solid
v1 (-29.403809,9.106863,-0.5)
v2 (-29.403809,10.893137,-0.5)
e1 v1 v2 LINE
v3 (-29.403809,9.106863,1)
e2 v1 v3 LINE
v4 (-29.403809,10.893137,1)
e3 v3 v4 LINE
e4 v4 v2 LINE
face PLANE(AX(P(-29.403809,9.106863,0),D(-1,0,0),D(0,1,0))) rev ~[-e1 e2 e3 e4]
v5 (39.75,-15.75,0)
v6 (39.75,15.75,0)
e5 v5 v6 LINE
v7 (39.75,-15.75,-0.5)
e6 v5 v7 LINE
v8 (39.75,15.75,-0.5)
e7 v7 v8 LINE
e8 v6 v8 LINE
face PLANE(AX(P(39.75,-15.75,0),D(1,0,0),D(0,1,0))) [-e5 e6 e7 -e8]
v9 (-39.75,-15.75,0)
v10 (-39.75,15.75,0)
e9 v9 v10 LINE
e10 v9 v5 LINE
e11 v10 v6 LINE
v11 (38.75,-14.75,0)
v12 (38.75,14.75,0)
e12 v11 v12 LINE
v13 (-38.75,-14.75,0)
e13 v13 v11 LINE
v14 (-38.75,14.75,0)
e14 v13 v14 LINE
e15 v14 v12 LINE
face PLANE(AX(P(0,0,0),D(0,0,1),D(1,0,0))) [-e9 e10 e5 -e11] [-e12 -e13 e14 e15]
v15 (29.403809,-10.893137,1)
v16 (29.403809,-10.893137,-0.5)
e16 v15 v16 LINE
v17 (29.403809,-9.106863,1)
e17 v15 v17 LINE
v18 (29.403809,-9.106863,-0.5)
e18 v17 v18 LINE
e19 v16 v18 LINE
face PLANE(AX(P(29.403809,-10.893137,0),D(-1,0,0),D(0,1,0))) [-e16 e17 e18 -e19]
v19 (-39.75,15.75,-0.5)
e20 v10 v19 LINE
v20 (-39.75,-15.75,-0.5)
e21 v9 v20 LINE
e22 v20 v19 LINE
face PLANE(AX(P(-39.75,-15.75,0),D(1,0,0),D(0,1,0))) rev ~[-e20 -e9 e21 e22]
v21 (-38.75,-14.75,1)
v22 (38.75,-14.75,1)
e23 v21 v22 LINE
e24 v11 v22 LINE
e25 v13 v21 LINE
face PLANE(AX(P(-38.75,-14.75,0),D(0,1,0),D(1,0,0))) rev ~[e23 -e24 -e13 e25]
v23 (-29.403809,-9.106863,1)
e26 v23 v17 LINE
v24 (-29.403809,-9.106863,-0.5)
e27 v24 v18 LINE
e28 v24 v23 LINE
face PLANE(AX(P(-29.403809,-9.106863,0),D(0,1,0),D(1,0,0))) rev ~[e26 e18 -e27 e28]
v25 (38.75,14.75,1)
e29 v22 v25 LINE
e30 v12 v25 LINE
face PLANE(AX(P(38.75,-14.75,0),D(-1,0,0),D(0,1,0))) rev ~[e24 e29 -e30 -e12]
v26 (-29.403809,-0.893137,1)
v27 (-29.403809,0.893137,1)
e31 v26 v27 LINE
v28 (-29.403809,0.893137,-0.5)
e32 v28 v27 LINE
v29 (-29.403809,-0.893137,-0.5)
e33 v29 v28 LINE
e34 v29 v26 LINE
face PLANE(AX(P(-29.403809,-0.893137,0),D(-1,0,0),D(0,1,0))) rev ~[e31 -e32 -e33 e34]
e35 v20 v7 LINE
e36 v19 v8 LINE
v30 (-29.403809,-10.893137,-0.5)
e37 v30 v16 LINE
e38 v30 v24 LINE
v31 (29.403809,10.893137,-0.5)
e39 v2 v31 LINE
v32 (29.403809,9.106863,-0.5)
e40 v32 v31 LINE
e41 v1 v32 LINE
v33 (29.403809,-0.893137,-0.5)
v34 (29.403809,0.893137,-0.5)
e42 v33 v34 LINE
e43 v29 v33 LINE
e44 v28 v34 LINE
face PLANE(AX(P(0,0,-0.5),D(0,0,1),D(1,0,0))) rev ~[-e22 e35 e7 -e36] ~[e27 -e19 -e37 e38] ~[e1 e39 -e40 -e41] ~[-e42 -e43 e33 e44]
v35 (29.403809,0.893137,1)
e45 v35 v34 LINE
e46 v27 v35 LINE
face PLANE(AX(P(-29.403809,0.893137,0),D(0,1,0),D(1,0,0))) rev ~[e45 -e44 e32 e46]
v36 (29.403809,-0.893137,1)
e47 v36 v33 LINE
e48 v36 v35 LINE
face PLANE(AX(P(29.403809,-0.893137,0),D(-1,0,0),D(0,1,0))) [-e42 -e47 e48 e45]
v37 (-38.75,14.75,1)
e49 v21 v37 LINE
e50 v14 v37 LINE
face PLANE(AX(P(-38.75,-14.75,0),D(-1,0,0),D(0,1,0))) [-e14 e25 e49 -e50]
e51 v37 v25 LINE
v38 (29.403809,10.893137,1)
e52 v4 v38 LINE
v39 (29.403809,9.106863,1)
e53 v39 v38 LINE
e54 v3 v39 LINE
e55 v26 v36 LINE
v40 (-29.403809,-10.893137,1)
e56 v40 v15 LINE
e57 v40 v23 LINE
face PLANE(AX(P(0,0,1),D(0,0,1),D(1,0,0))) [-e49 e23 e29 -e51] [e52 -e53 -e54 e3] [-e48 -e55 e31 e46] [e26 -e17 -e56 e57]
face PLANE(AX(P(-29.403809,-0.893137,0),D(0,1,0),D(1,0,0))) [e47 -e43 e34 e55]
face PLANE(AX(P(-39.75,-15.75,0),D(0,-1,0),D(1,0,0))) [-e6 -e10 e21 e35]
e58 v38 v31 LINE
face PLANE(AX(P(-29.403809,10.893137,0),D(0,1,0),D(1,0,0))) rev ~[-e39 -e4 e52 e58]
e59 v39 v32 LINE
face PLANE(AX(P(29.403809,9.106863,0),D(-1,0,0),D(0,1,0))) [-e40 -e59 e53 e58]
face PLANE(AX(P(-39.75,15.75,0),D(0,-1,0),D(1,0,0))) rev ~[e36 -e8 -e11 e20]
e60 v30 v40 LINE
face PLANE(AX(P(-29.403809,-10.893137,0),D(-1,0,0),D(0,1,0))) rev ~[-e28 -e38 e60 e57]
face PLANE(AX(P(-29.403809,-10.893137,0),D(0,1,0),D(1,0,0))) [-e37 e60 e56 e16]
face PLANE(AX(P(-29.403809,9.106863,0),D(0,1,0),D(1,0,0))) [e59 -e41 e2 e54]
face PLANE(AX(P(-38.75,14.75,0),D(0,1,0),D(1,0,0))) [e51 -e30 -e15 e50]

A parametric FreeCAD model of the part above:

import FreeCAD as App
import Part
import Sketcher
Q = App.Units.Quantity


def add_polygon(sketch, points):
    """Adds a closed chain of lines whose ends are joined by coincident constraints."""
    first, n = sketch.GeometryCount, len(points)
    for a, b in zip(points, points[1:] + points[:1]):
        sketch.addGeometry(Part.LineSegment(App.Vector(*a, 0), App.Vector(*b, 0)), False)
    for i in range(n):
        sketch.addConstraint(Sketcher.Constraint("Coincident", first + i, 2, first + (i + 1) % n, 1))

doc = App.newDocument("Part")
params = doc.addObject("Spreadsheet::Sheet", "Params")
for row, (alias, value) in enumerate([
    ("sketch1_width", "79.5 mm"),
    ("sketch1_height", "31.5 mm"),
    ("pad1_length", "0.5 mm"),
    ("sketch2_width", "77.5 mm"),
    ("sketch2_height", "29.5 mm"),
    ("pad2_length", "1 mm"),
], start=1):
    params.set(f"A{row}", alias)
    params.set(f"B{row}", "=" + value)
    params.setAlias(f"B{row}", alias)

body = doc.addObject("PartDesign::Body", "Body")

# Sketch on XY plane
sketch1 = body.newObject("Sketcher::SketchObject", "Sketch")
sketch1.AttachmentSupport = (doc.getObject("XY_Plane"), [""])
sketch1.MapMode = "FlatFace"
add_polygon(sketch1, [(-39.8, 15.8), (-39.8, -15.8), (39.8, -15.8), (39.8, 15.8)])  # lines 0-3
add_polygon(sketch1, [(29.4, -10.9), (-29.4, -10.9), (-29.4, -9.1), (29.4, -9.1)])  # lines 4-7
add_polygon(sketch1, [(29.4, -0.9), (-29.4, -0.9), (-29.4, 0.9), (29.4, 0.9)])  # lines 8-11
add_polygon(sketch1, [(29.4, 9.1), (-29.4, 9.1), (-29.4, 10.9), (29.4, 10.9)])  # lines 12-15
sketch1.addConstraint(Sketcher.Constraint("Vertical", 0))
sketch1.addConstraint(Sketcher.Constraint("Horizontal", 1))
sketch1.addConstraint(Sketcher.Constraint("Vertical", 2))
sketch1.addConstraint(Sketcher.Constraint("Horizontal", 3))
sketch1.addConstraint(Sketcher.Constraint("Horizontal", 4))
sketch1.addConstraint(Sketcher.Constraint("Vertical", 5))
sketch1.addConstraint(Sketcher.Constraint("Horizontal", 6))
sketch1.addConstraint(Sketcher.Constraint("Vertical", 7))
sketch1.addConstraint(Sketcher.Constraint("Horizontal", 8))
sketch1.addConstraint(Sketcher.Constraint("Vertical", 9))
sketch1.addConstraint(Sketcher.Constraint("Horizontal", 10))
sketch1.addConstraint(Sketcher.Constraint("Vertical", 11))
sketch1.addConstraint(Sketcher.Constraint("Horizontal", 12))
sketch1.addConstraint(Sketcher.Constraint("Vertical", 13))
sketch1.addConstraint(Sketcher.Constraint("Horizontal", 14))
sketch1.addConstraint(Sketcher.Constraint("Vertical", 15))
sketch1.addConstraint(Sketcher.Constraint("Symmetric", 0, 2, 2, 2, -1, 1))
sketch1.addConstraint(Sketcher.Constraint("Symmetric", 8, 2, 10, 2, -1, 1))
sketch1.addConstraint(Sketcher.Constraint("Symmetric", 6, 2, 12, 2, -1, 1))
sketch1.addConstraint(Sketcher.Constraint("Symmetric", 4, 2, 14, 2, -1, 1))
sketch1.addConstraint(Sketcher.Constraint("Vertical", 5, 2, 8, 2))
sketch1.addConstraint(Sketcher.Constraint("Vertical", 7, 2, 10, 2))
sketch1.addConstraint(Sketcher.Constraint("Equal", 7, 9))
sketch1.addConstraint(Sketcher.Constraint("DistanceX", 1, 1, 1, 2, Q("79.5 mm")))
sketch1.addConstraint(Sketcher.Constraint("DistanceY", 0, 2, 0, 1, Q("31.5 mm")))
sketch1.addConstraint(Sketcher.Constraint("DistanceY", 4, 2, 8, 2, Q("10 mm")))
sketch1.addConstraint(Sketcher.Constraint("DistanceX", 4, 2, 4, 1, Q("58.807618 mm")))
sketch1.addConstraint(Sketcher.Constraint("DistanceY", 5, 1, 5, 2, Q("1.786274 mm")))
sketch1.setExpression("Constraints[39]", "Params.sketch1_width")
sketch1.setExpression("Constraints[40]", "Params.sketch1_height")
pad1 = body.newObject("PartDesign::Pad", "Pad")
pad1.Profile = sketch1
pad1.setExpression("Length", "Params.pad1_length")
pad1.Reversed = True

# Sketch on XY plane
sketch2 = body.newObject("Sketcher::SketchObject", "Sketch001")
sketch2.AttachmentSupport = (doc.getObject("XY_Plane"), [""])
sketch2.MapMode = "FlatFace"
add_polygon(sketch2, [(-38.8, 14.8), (-38.8, -14.8), (38.8, -14.8), (38.8, 14.8)])  # lines 0-3
add_polygon(sketch2, [(29.4, -10.9), (-29.4, -10.9), (-29.4, -9.1), (29.4, -9.1)])  # lines 4-7
add_polygon(sketch2, [(29.4, -0.9), (-29.4, -0.9), (-29.4, 0.9), (29.4, 0.9)])  # lines 8-11
add_polygon(sketch2, [(29.4, 9.1), (-29.4, 9.1), (-29.4, 10.9), (29.4, 10.9)])  # lines 12-15
sketch2.addConstraint(Sketcher.Constraint("Vertical", 0))
sketch2.addConstraint(Sketcher.Constraint("Horizontal", 1))
sketch2.addConstraint(Sketcher.Constraint("Vertical", 2))
sketch2.addConstraint(Sketcher.Constraint("Horizontal", 3))
sketch2.addConstraint(Sketcher.Constraint("Horizontal", 4))
sketch2.addConstraint(Sketcher.Constraint("Vertical", 5))
sketch2.addConstraint(Sketcher.Constraint("Horizontal", 6))
sketch2.addConstraint(Sketcher.Constraint("Vertical", 7))
sketch2.addConstraint(Sketcher.Constraint("Horizontal", 8))
sketch2.addConstraint(Sketcher.Constraint("Vertical", 9))
sketch2.addConstraint(Sketcher.Constraint("Horizontal", 10))
sketch2.addConstraint(Sketcher.Constraint("Vertical", 11))
sketch2.addConstraint(Sketcher.Constraint("Horizontal", 12))
sketch2.addConstraint(Sketcher.Constraint("Vertical", 13))
sketch2.addConstraint(Sketcher.Constraint("Horizontal", 14))
sketch2.addConstraint(Sketcher.Constraint("Vertical", 15))
sketch2.addConstraint(Sketcher.Constraint("Symmetric", 0, 2, 2, 2, -1, 1))
sketch2.addConstraint(Sketcher.Constraint("Symmetric", 8, 2, 10, 2, -1, 1))
sketch2.addConstraint(Sketcher.Constraint("Symmetric", 6, 2, 12, 2, -1, 1))
sketch2.addConstraint(Sketcher.Constraint("Symmetric", 4, 2, 14, 2, -1, 1))
sketch2.addConstraint(Sketcher.Constraint("Vertical", 5, 2, 8, 2))
sketch2.addConstraint(Sketcher.Constraint("Vertical", 7, 2, 10, 2))
sketch2.addConstraint(Sketcher.Constraint("Equal", 7, 9))
sketch2.addConstraint(Sketcher.Constraint("DistanceX", 1, 1, 1, 2, Q("77.5 mm")))
sketch2.addConstraint(Sketcher.Constraint("DistanceY", 0, 2, 0, 1, Q("29.5 mm")))
sketch2.addConstraint(Sketcher.Constraint("DistanceY", 4, 2, 8, 2, Q("10 mm")))
sketch2.addConstraint(Sketcher.Constraint("DistanceX", 4, 2, 4, 1, Q("58.807618 mm")))
sketch2.addConstraint(Sketcher.Constraint("DistanceY", 5, 1, 5, 2, Q("1.786274 mm")))
sketch2.setExpression("Constraints[39]", "Params.sketch2_width")
sketch2.setExpression("Constraints[40]", "Params.sketch2_height")
pad2 = body.newObject("PartDesign::Pad", "Pad001")
pad2.Profile = sketch2
pad2.setExpression("Length", "Params.pad2_length")

doc.recompute()
